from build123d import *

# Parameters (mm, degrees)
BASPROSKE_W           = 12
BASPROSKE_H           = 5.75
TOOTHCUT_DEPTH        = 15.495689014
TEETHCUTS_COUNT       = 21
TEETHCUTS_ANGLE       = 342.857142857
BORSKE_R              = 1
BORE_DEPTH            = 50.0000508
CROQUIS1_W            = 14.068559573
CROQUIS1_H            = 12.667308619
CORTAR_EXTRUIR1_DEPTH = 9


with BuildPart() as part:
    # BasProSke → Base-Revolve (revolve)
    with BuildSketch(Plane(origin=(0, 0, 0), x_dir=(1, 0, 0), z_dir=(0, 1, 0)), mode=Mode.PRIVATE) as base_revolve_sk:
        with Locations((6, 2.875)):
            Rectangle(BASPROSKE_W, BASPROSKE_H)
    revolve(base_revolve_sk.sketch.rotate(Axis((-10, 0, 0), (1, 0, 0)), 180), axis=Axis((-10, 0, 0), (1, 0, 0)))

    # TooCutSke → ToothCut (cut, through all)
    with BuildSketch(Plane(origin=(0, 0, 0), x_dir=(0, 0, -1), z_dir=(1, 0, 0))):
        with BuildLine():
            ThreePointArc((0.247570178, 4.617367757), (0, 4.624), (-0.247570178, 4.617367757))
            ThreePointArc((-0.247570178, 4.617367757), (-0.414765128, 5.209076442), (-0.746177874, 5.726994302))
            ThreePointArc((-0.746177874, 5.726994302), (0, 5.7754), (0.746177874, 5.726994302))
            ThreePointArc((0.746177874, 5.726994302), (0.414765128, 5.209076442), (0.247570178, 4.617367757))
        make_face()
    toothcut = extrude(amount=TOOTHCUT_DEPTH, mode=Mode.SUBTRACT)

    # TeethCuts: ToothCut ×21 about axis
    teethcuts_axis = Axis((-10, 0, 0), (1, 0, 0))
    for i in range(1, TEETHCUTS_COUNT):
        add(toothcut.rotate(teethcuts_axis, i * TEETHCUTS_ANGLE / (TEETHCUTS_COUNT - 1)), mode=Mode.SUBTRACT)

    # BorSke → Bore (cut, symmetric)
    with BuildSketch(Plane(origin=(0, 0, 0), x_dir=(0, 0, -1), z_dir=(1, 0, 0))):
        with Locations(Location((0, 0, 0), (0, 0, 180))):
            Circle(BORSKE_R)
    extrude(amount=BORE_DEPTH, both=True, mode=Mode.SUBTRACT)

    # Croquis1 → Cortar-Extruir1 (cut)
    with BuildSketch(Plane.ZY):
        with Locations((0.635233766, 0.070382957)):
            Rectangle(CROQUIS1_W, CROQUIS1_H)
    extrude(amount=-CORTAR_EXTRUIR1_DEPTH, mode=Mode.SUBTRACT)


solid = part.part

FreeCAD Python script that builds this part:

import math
import FreeCAD as App
import Part
import Sketcher
from FreeCAD import Vector


def add_polygon(sketch, points):
    """Adds a closed chain of lines whose ends are joined by coincident constraints."""
    first, n = sketch.GeometryCount, len(points)
    for a, b in zip(points, points[1:] + points[:1]):
        sketch.addGeometry(Part.LineSegment(App.Vector(*a, 0), App.Vector(*b, 0)), False)
    for i in range(n):
        sketch.addConstraint(Sketcher.Constraint("Coincident", first + i, 2, first + (i + 1) % n, 1))

doc = App.newDocument("Part")
body = doc.addObject("PartDesign::Body", "Body")

sketch1 = body.newObject("Sketcher::SketchObject", "Sketch")
sketch1.AttachmentSupport = (doc.getObject("XZ_Plane"), [""])
sketch1.MapMode = "FlatFace"
add_polygon(sketch1, [(0, -6), (0, 0), (12, 0), (12, -6)])
sketch1.addConstraint(Sketcher.Constraint("Vertical", 0))
sketch1.addConstraint(Sketcher.Constraint("Horizontal", 1))
sketch1.addConstraint(Sketcher.Constraint("Vertical", 2))
sketch1.addConstraint(Sketcher.Constraint("Horizontal", 3))
sketch1.addConstraint(Sketcher.Constraint("Coincident", 0, 2, -1, 1))
sketch1.addConstraint(Sketcher.Constraint("DistanceX", 1, 1, 1, 2, 12.0))
sketch1.addConstraint(Sketcher.Constraint("DistanceY", 0, 1, 0, 2, 5.75))
revolution = body.newObject("PartDesign::Revolution", "Revolution")
revolution.Profile = sketch1
revolution.ReferenceAxis = (sketch1, ["H_Axis"])
revolution.Angle = 360

sketch2 = body.newObject("Sketcher::SketchObject", "Sketch001")
sketch2.AttachmentSupport = (doc.getObject("YZ_Plane"), [""])
sketch2.MapMode = "FlatFace"
sketch2.addGeometry(Part.ArcOfCircle(Part.Circle(Vector(0, 0, 0), Vector(0, 0, 1), 4.62), math.radians(-3.07), math.radians(3.07)), False)
sketch2.addGeometry(Part.ArcOfCircle(Part.Circle(Vector(4.35, -2.33, 0), Vector(0, 0, 1), 2.1), math.radians(49), math.radians(83)), False)
sketch2.addGeometry(Part.ArcOfCircle(Part.Circle(Vector(0, 0, 0), Vector(0, 0, 1), 5.78), math.radians(-7.42), math.radians(7.42)), False)
sketch2.addGeometry(Part.ArcOfCircle(Part.Circle(Vector(4.35, 2.33, 0), Vector(0, 0, 1), 2.1), math.radians(-83), math.radians(-49)), False)
sketch2.addConstraint(Sketcher.Constraint("Coincident", 0, 1, 1, 2))
sketch2.addConstraint(Sketcher.Constraint("Coincident", 1, 1, 2, 1))
sketch2.addConstraint(Sketcher.Constraint("Coincident", 2, 2, 3, 2))
sketch2.addConstraint(Sketcher.Constraint("Coincident", 3, 1, 0, 2))
sketch2.addConstraint(Sketcher.Constraint("Coincident", 0, 3, -1, 1))
sketch2.addConstraint(Sketcher.Constraint("Coincident", 2, 3, -1, 1))
sketch2.addConstraint(Sketcher.Constraint("Equal", 1, 3))
sketch2.addConstraint(Sketcher.Constraint("Symmetric", 1, 3, 3, 3, -1))
sketch2.addConstraint(Sketcher.Constraint("Radius", 1, 2.1))
sketch2.addConstraint(Sketcher.Constraint("Radius", 0, 4.624))
sketch2.addConstraint(Sketcher.Constraint("Radius", 2, 5.7754))
sketch2.addConstraint(Sketcher.Constraint("DistanceX", -1, 1, 1, 3, 4.34835))
sketch2.addConstraint(Sketcher.Constraint("DistanceY", 0, 1, -1, 1, 0.24757))
pocket1 = body.newObject("PartDesign::Pocket", "Pocket")
pocket1.Profile = sketch2
pocket1.Type = "ThroughAll"
pocket1.Reversed = True
doc.recompute()

polarpattern = body.newObject("PartDesign::PolarPattern", "PolarPattern")
polarpattern.Originals = [pocket1]
polarpattern.Axis = (doc.getObject("X_Axis"), [""])
polarpattern.Angle = 360
polarpattern.Occurrences = 21
body.Tip = polarpattern

sketch3 = body.newObject("Sketcher::SketchObject", "Sketch002")
sketch3.AttachmentSupport = (doc.getObject("YZ_Plane"), [""])
sketch3.MapMode = "FlatFace"
sketch3.addGeometry(Part.Circle(Vector(0, 0, 0), Vector(0, 0, 1), 1), False)
sketch3.addConstraint(Sketcher.Constraint("Coincident", 0, 3, -1, 1))
sketch3.addConstraint(Sketcher.Constraint("Diameter", 0, 2.0))
pocket2 = body.newObject("PartDesign::Pocket", "Pocket001")
pocket2.Profile = sketch3
pocket2.Length = 100.000102
pocket2.Midplane = True

sketch4 = body.newObject("Sketcher::SketchObject", "Sketch003")
sketch4.AttachmentSupport = (doc.getObject("YZ_Plane"), [""])
sketch4.MapMode = "FlatFace"
add_polygon(sketch4, [(6, -6), (-6, -6), (-6, 8), (6, 8)])
sketch4.addConstraint(Sketcher.Constraint("Horizontal", 0))
sketch4.addConstraint(Sketcher.Constraint("Vertical", 1))
sketch4.addConstraint(Sketcher.Constraint("Horizontal", 2))
sketch4.addConstraint(Sketcher.Constraint("Vertical", 3))
sketch4.addConstraint(Sketcher.Constraint("DistanceX", 0, 2, 0, 1, 12.667309))
sketch4.addConstraint(Sketcher.Constraint("DistanceY", 1, 1, 1, 2, 14.06856))
sketch4.addConstraint(Sketcher.Constraint("DistanceX", 0, 2, -1, 1, 6.263271))
sketch4.addConstraint(Sketcher.Constraint("DistanceY", 0, 2, -1, 1, 6.399046))
pocket3 = body.newObject("PartDesign::Pocket", "Pocket002")
pocket3.Profile = sketch4
pocket3.Length = 9
pocket3.Reversed = True

doc.recompute()
